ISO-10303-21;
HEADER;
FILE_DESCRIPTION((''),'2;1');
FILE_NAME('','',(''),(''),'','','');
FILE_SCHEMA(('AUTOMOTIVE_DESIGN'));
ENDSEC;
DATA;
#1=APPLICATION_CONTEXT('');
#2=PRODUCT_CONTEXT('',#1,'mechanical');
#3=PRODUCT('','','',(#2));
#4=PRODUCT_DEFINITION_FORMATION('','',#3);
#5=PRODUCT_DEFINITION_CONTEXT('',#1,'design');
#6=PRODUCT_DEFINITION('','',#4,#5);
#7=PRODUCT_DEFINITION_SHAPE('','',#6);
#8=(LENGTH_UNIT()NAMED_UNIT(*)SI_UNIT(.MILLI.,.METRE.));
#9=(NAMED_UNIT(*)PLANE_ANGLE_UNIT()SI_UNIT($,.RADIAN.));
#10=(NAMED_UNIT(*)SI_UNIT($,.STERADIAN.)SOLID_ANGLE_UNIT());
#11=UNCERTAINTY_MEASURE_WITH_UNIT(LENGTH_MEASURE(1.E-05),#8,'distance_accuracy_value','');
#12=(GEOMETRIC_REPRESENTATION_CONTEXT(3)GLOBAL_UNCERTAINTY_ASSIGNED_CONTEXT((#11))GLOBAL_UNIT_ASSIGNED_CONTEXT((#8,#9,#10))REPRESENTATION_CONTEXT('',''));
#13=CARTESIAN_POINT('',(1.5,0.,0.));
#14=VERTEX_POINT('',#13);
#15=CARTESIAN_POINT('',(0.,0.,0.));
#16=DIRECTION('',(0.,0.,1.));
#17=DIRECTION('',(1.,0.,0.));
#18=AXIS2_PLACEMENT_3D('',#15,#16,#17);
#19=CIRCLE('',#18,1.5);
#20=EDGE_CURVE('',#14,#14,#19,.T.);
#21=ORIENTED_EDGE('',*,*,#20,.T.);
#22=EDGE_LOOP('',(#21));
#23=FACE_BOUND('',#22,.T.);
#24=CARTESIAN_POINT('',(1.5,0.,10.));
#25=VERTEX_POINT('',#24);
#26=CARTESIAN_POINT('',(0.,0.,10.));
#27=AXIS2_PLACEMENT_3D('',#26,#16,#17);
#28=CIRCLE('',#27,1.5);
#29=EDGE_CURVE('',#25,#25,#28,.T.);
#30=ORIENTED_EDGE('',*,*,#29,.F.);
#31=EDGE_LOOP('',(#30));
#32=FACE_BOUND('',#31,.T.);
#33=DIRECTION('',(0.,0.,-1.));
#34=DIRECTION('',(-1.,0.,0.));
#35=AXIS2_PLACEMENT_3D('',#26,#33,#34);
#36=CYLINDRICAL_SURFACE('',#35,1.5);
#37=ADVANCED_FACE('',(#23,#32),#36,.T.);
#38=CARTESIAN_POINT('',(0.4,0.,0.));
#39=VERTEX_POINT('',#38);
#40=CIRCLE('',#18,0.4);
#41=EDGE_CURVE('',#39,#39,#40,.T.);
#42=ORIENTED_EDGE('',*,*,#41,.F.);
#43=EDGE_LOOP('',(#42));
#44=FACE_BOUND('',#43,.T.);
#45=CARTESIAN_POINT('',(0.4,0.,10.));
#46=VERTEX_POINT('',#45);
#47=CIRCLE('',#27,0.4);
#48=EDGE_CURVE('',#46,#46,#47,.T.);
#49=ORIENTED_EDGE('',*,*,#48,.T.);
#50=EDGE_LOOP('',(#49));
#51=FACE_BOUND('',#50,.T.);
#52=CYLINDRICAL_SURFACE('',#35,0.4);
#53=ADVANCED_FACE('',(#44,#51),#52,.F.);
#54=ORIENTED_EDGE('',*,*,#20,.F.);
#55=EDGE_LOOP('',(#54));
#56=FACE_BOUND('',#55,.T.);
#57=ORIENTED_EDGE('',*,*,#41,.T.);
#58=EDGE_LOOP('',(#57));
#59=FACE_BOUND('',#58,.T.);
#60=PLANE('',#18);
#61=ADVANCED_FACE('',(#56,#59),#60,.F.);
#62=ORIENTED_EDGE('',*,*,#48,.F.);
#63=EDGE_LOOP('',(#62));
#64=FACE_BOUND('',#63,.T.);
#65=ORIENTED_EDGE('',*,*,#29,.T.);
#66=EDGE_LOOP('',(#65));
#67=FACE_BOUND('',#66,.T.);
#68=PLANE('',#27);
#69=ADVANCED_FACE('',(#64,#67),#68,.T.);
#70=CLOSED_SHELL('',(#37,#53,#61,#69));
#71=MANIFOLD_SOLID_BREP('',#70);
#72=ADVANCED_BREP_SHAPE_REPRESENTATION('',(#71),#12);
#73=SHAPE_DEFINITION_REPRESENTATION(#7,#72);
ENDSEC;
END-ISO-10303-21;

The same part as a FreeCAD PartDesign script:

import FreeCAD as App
import Part
import Sketcher
from FreeCAD import Vector

doc = App.newDocument("Part")
body = doc.addObject("PartDesign::Body", "Body")

# Sketch on XY plane
sketch1 = body.newObject("Sketcher::SketchObject", "Sketch")
sketch1.AttachmentSupport = (doc.getObject("XY_Plane"), [""])
sketch1.MapMode = "FlatFace"
sketch1.addGeometry([
    Part.Circle(Vector(0, 0, 0), Vector(0, 0, 1), 1.5),
    Part.Circle(Vector(0, 0, 0), Vector(0, 0, 1), 0.4),
], False)
sketch1.addConstraint([
    Sketcher.Constraint("Coincident", 0, 3, -1, 1),
    Sketcher.Constraint("Coincident", 1, 3, -1, 1),
    Sketcher.Constraint("Diameter", 0, 3.0),
    Sketcher.Constraint("Diameter", 1, 0.8),
])
pad1 = body.newObject("PartDesign::Pad", "Pad")
pad1.Profile = sketch1
pad1.Length = 10

doc.recompute()
